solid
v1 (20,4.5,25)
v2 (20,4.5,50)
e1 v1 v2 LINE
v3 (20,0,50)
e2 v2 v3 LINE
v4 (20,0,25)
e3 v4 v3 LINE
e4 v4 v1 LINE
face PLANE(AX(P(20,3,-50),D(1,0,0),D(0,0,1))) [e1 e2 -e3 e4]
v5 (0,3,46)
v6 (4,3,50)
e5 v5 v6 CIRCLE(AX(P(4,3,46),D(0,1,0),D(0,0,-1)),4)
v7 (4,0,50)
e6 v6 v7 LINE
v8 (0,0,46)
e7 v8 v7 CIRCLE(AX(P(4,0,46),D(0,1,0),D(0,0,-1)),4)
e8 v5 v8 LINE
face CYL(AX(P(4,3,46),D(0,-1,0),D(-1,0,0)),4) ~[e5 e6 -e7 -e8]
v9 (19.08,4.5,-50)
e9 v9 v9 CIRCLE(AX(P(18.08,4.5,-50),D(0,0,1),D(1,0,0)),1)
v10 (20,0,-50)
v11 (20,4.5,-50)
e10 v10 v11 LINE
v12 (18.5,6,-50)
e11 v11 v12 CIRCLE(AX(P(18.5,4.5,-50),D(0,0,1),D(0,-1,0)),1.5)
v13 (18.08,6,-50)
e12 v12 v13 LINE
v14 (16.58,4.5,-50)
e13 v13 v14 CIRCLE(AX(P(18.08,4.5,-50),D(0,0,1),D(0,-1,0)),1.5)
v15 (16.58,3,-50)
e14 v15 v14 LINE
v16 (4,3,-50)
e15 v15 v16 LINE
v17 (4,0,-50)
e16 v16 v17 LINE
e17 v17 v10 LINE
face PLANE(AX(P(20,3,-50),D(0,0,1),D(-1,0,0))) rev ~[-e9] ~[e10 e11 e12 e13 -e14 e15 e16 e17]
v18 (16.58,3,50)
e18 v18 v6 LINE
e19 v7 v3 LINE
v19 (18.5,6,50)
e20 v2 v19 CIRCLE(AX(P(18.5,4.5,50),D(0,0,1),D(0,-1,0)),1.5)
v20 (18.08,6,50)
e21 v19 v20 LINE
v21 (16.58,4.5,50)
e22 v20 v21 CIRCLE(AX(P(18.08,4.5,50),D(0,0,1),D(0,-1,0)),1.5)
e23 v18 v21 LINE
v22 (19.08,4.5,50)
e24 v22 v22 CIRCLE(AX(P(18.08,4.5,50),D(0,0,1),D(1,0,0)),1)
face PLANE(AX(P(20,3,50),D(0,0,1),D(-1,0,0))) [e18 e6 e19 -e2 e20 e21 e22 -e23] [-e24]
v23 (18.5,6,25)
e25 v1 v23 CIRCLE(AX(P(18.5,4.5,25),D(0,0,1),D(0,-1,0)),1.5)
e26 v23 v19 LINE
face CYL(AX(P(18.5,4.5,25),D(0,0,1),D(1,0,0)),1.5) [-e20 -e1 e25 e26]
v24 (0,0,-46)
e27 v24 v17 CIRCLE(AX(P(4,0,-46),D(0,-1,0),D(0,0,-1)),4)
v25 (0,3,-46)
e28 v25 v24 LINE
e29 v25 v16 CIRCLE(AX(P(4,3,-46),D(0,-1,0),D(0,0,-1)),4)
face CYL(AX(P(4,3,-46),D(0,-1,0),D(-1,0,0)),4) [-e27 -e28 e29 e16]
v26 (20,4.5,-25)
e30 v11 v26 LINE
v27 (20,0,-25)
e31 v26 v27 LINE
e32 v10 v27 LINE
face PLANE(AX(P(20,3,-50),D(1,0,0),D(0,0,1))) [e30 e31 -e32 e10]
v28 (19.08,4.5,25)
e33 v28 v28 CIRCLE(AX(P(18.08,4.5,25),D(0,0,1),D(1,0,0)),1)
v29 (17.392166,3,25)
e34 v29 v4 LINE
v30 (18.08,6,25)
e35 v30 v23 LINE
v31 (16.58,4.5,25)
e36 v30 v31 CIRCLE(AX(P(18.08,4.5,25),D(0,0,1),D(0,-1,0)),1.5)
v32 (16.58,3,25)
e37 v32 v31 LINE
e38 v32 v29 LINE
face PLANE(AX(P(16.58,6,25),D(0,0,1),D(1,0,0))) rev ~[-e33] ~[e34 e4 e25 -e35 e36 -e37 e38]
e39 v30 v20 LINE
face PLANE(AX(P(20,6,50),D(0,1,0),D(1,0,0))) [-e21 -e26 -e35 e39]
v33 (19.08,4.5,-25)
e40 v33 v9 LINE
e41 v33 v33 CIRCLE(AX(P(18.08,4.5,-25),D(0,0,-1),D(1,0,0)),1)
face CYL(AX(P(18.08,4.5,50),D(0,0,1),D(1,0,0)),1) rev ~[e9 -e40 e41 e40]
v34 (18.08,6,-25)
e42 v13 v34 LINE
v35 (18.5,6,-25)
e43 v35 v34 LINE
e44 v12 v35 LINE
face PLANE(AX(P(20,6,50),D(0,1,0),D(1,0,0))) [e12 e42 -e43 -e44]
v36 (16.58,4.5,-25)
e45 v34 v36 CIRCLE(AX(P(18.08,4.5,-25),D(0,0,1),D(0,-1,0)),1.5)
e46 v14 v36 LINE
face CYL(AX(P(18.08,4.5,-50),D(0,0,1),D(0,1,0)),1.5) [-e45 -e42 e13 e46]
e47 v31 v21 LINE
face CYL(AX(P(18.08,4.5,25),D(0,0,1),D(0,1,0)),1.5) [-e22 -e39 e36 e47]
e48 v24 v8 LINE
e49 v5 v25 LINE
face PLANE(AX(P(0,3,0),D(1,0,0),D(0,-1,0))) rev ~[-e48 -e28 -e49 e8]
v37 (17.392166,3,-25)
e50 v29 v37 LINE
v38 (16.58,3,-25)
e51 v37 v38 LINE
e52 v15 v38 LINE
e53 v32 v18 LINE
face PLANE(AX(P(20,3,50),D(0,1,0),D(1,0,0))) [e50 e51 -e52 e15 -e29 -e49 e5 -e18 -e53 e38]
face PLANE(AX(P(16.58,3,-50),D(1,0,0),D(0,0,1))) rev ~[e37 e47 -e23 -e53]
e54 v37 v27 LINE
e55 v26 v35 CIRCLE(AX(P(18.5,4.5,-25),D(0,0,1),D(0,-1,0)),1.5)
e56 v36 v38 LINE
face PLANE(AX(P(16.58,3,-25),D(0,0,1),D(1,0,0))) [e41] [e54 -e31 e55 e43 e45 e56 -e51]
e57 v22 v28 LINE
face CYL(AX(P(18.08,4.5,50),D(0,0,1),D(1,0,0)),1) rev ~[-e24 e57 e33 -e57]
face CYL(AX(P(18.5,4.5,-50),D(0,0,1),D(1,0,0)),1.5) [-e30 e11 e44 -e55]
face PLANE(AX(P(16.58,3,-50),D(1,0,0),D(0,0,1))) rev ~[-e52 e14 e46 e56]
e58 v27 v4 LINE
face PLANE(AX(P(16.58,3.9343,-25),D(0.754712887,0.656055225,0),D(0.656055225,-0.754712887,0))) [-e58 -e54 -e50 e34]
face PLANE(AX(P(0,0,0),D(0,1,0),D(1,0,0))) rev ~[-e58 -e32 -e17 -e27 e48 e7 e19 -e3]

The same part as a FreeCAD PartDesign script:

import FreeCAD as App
import Part
import Sketcher
Q = App.Units.Quantity


def edges_at(feature, points):
    """Names of the edges that pass closest to the given points."""
    edges = feature.Shape.Edges
    near = lambda p: min(range(len(edges)), key=lambda i: edges[i].distToShape(Part.Vertex(*p))[0])
    return sorted({f"Edge{near(p) + 1}" for p in points})

doc = App.newDocument("Part")
body = doc.addObject("PartDesign::Body", "Body")

# Sketch on XY plane
sketch1 = body.newObject("Sketcher::SketchObject", "Sketch")
sketch1.AttachmentSupport = (doc.getObject("XY_Plane"), [""])
sketch1.MapMode = "FlatFace"
sketch1.addGeometry([
    Part.LineSegment(App.Vector(0, 3, 0), App.Vector(0, 0, 0)),
    Part.LineSegment(App.Vector(0, 0, 0), App.Vector(20, 0, 0)),
    Part.LineSegment(App.Vector(20, 0, 0), App.Vector(20, 3, 0)),
    Part.LineSegment(App.Vector(20, 3, 0), App.Vector(0, 3, 0)),
], False)
sketch1.addConstraint([
    Sketcher.Constraint("Coincident", 0, 2, 1, 1),
    Sketcher.Constraint("Coincident", 1, 2, 2, 1),
    Sketcher.Constraint("Coincident", 2, 2, 3, 1),
    Sketcher.Constraint("Coincident", 3, 2, 0, 1),
    Sketcher.Constraint("Vertical", 0),
    Sketcher.Constraint("Horizontal", 1),
    Sketcher.Constraint("Vertical", 2),
    Sketcher.Constraint("Horizontal", 3),
    Sketcher.Constraint("Coincident", 0, 2, -1, 1),
    Sketcher.Constraint("DistanceX", 1, 1, 1, 2, Q("20 mm")),
    Sketcher.Constraint("DistanceY", 0, 2, 0, 1, Q("3 mm")),
])
pad1 = body.newObject("PartDesign::Pad", "Pad")
pad1.Profile = sketch1
pad1.Length = 100
pad1.Midplane = True
doc.recompute()

fillet = body.newObject("PartDesign::Fillet", "Fillet")
fillet.Base = (pad1, edges_at(pad1, [(0, 1.5, 50), (0, 1.5, -50)]))
fillet.Radius = 4

# Sketch on XZ plane
sketch2 = body.newObject("Sketcher::SketchObject", "Sketch001")
sketch2.AttachmentSupport = (doc.getObject("XZ_Plane"), [""])
sketch2.MapMode = "FlatFace"
sketch2.AttachmentOffset = App.Placement(App.Vector(0, 0, -3), App.Rotation())
sketch2.addGeometry([
    Part.LineSegment(App.Vector(20, 50, 0), App.Vector(20, -50, 0)),
    Part.LineSegment(App.Vector(20, -50, 0), App.Vector(16.6, -50, 0)),
    Part.LineSegment(App.Vector(16.6, -50, 0), App.Vector(16.6, 50, 0)),
    Part.LineSegment(App.Vector(16.6, 50, 0), App.Vector(20, 50, 0)),
], False)
sketch2.addConstraint([
    Sketcher.Constraint("Coincident", 0, 2, 1, 1),
    Sketcher.Constraint("Coincident", 1, 2, 2, 1),
    Sketcher.Constraint("Coincident", 2, 2, 3, 1),
    Sketcher.Constraint("Coincident", 3, 2, 0, 1),
    Sketcher.Constraint("Vertical", 0),
    Sketcher.Constraint("Horizontal", 1),
    Sketcher.Constraint("Vertical", 2),
    Sketcher.Constraint("Horizontal", 3),
    Sketcher.Constraint("DistanceX", 1, 2, 1, 1, Q("3.42 mm")),
    Sketcher.Constraint("DistanceY", 0, 2, 0, 1, Q("100 mm")),
    Sketcher.Constraint("DistanceX", -1, 1, 0, 2, Q("20 mm")),
    Sketcher.Constraint("DistanceY", 0, 2, -1, 1, Q("50 mm")),
])
pad2 = body.newObject("PartDesign::Pad", "Pad001")
pad2.Profile = sketch2
pad2.Length = 3
pad2.Reversed = True

# Sketch on XY plane
sketch3 = body.newObject("Sketcher::SketchObject", "Sketch002")
sketch3.AttachmentSupport = (doc.getObject("XY_Plane"), [""])
sketch3.MapMode = "FlatFace"
sketch3.AttachmentOffset = App.Placement(App.Vector(0, 0, 50), App.Rotation())
sketch3.addGeometry(Part.Circle(App.Vector(18.1, 4.5, 0), App.Vector(0, 0, 1), 1), False)
sketch3.addConstraint([
    Sketcher.Constraint("Diameter", 0, Q("2 mm")),
    Sketcher.Constraint("DistanceY", -1, 1, 0, 3, Q("4.5 mm")),
    Sketcher.Constraint("DistanceX", -1, 1, 0, 3, Q("18.08 mm")),
])
pocket1 = body.newObject("PartDesign::Pocket", "Pocket")
pocket1.Profile = sketch3
pocket1.Type = "ThroughAll"

# Sketch on XZ plane
sketch4 = body.newObject("Sketcher::SketchObject", "Sketch003")
sketch4.AttachmentSupport = (doc.getObject("XZ_Plane"), [""])
sketch4.MapMode = "FlatFace"
sketch4.AttachmentOffset = App.Placement(App.Vector(0, 0, -6), App.Rotation())
sketch4.addGeometry([
    Part.LineSegment(App.Vector(20, -25, 0), App.Vector(16.6, -25, 0)),
    Part.LineSegment(App.Vector(16.6, -25, 0), App.Vector(16.6, 25, 0)),
    Part.LineSegment(App.Vector(16.6, 25, 0), App.Vector(20, 25, 0)),
    Part.LineSegment(App.Vector(20, 25, 0), App.Vector(20, -25, 0)),
], False)
sketch4.addConstraint([
    Sketcher.Constraint("Coincident", 0, 2, 1, 1),
    Sketcher.Constraint("Coincident", 1, 2, 2, 1),
    Sketcher.Constraint("Coincident", 2, 2, 3, 1),
    Sketcher.Constraint("Coincident", 3, 2, 0, 1),
    Sketcher.Constraint("Horizontal", 0),
    Sketcher.Constraint("Vertical", 1),
    Sketcher.Constraint("Horizontal", 2),
    Sketcher.Constraint("Vertical", 3),
    Sketcher.Constraint("DistanceY", 1, 1, 1, 2, Q("50 mm")),
    Sketcher.Constraint("DistanceY", 0, 2, -1, 1, Q("25 mm")),
    Sketcher.Constraint("DistanceX", -1, 1, 2, 2, Q("20 mm")),
    Sketcher.Constraint("DistanceX", 0, 2, 0, 1, Q("3.42 mm")),
])
pocket2 = body.newObject("PartDesign::Pocket", "Pocket001")
pocket2.Profile = sketch4
pocket2.Length = 3
pocket2.Reversed = True
doc.recompute()

fillet2 = body.newObject("PartDesign::Fillet", "Fillet001")
fillet2.Base = (pocket2, edges_at(pocket2, [
    (20, 6, 37.5),
    (16.58, 6, 37.5),
    (20, 6, -37.5),
    (16.58, 6, -37.5),
]))
fillet2.Radius = 1.5

# Sketch on XY plane
sketch5 = body.newObject("Sketcher::SketchObject", "Sketch004")
sketch5.AttachmentSupport = (doc.getObject("XY_Plane"), [""])
sketch5.MapMode = "FlatFace"
sketch5.AttachmentOffset = App.Placement(App.Vector(0, 0, -25), App.Rotation())
sketch5.addGeometry([
    Part.LineSegment(App.Vector(16.6, 3.9, 0), App.Vector(20, 0, 0)),
    Part.LineSegment(App.Vector(20, 0, 0), App.Vector(20, 3.9, 0)),
    Part.LineSegment(App.Vector(20, 3.9, 0), App.Vector(16.6, 3.9, 0)),
], False)
sketch5.addConstraint([
    Sketcher.Constraint("Coincident", 0, 2, 1, 1),
    Sketcher.Constraint("Coincident", 1, 2, 2, 1),
    Sketcher.Constraint("Coincident", 2, 2, 0, 1),
    Sketcher.Constraint("Vertical", 1),
    Sketcher.Constraint("Horizontal", 2),
    Sketcher.Constraint("PointOnObject", 0, 2, -1),
    Sketcher.Constraint("Angle", 0, Q("-49.0003 deg")),
    Sketcher.Constraint("DistanceX", -1, 1, 0, 2, Q("20 mm")),
    Sketcher.Constraint("DistanceX", 2, 2, 2, 1, Q("3.42 mm")),
])
pocket3 = body.newObject("PartDesign::Pocket", "Pocket002")
pocket3.Profile = sketch5
pocket3.Length = 50
pocket3.Reversed = True

doc.recompute()
